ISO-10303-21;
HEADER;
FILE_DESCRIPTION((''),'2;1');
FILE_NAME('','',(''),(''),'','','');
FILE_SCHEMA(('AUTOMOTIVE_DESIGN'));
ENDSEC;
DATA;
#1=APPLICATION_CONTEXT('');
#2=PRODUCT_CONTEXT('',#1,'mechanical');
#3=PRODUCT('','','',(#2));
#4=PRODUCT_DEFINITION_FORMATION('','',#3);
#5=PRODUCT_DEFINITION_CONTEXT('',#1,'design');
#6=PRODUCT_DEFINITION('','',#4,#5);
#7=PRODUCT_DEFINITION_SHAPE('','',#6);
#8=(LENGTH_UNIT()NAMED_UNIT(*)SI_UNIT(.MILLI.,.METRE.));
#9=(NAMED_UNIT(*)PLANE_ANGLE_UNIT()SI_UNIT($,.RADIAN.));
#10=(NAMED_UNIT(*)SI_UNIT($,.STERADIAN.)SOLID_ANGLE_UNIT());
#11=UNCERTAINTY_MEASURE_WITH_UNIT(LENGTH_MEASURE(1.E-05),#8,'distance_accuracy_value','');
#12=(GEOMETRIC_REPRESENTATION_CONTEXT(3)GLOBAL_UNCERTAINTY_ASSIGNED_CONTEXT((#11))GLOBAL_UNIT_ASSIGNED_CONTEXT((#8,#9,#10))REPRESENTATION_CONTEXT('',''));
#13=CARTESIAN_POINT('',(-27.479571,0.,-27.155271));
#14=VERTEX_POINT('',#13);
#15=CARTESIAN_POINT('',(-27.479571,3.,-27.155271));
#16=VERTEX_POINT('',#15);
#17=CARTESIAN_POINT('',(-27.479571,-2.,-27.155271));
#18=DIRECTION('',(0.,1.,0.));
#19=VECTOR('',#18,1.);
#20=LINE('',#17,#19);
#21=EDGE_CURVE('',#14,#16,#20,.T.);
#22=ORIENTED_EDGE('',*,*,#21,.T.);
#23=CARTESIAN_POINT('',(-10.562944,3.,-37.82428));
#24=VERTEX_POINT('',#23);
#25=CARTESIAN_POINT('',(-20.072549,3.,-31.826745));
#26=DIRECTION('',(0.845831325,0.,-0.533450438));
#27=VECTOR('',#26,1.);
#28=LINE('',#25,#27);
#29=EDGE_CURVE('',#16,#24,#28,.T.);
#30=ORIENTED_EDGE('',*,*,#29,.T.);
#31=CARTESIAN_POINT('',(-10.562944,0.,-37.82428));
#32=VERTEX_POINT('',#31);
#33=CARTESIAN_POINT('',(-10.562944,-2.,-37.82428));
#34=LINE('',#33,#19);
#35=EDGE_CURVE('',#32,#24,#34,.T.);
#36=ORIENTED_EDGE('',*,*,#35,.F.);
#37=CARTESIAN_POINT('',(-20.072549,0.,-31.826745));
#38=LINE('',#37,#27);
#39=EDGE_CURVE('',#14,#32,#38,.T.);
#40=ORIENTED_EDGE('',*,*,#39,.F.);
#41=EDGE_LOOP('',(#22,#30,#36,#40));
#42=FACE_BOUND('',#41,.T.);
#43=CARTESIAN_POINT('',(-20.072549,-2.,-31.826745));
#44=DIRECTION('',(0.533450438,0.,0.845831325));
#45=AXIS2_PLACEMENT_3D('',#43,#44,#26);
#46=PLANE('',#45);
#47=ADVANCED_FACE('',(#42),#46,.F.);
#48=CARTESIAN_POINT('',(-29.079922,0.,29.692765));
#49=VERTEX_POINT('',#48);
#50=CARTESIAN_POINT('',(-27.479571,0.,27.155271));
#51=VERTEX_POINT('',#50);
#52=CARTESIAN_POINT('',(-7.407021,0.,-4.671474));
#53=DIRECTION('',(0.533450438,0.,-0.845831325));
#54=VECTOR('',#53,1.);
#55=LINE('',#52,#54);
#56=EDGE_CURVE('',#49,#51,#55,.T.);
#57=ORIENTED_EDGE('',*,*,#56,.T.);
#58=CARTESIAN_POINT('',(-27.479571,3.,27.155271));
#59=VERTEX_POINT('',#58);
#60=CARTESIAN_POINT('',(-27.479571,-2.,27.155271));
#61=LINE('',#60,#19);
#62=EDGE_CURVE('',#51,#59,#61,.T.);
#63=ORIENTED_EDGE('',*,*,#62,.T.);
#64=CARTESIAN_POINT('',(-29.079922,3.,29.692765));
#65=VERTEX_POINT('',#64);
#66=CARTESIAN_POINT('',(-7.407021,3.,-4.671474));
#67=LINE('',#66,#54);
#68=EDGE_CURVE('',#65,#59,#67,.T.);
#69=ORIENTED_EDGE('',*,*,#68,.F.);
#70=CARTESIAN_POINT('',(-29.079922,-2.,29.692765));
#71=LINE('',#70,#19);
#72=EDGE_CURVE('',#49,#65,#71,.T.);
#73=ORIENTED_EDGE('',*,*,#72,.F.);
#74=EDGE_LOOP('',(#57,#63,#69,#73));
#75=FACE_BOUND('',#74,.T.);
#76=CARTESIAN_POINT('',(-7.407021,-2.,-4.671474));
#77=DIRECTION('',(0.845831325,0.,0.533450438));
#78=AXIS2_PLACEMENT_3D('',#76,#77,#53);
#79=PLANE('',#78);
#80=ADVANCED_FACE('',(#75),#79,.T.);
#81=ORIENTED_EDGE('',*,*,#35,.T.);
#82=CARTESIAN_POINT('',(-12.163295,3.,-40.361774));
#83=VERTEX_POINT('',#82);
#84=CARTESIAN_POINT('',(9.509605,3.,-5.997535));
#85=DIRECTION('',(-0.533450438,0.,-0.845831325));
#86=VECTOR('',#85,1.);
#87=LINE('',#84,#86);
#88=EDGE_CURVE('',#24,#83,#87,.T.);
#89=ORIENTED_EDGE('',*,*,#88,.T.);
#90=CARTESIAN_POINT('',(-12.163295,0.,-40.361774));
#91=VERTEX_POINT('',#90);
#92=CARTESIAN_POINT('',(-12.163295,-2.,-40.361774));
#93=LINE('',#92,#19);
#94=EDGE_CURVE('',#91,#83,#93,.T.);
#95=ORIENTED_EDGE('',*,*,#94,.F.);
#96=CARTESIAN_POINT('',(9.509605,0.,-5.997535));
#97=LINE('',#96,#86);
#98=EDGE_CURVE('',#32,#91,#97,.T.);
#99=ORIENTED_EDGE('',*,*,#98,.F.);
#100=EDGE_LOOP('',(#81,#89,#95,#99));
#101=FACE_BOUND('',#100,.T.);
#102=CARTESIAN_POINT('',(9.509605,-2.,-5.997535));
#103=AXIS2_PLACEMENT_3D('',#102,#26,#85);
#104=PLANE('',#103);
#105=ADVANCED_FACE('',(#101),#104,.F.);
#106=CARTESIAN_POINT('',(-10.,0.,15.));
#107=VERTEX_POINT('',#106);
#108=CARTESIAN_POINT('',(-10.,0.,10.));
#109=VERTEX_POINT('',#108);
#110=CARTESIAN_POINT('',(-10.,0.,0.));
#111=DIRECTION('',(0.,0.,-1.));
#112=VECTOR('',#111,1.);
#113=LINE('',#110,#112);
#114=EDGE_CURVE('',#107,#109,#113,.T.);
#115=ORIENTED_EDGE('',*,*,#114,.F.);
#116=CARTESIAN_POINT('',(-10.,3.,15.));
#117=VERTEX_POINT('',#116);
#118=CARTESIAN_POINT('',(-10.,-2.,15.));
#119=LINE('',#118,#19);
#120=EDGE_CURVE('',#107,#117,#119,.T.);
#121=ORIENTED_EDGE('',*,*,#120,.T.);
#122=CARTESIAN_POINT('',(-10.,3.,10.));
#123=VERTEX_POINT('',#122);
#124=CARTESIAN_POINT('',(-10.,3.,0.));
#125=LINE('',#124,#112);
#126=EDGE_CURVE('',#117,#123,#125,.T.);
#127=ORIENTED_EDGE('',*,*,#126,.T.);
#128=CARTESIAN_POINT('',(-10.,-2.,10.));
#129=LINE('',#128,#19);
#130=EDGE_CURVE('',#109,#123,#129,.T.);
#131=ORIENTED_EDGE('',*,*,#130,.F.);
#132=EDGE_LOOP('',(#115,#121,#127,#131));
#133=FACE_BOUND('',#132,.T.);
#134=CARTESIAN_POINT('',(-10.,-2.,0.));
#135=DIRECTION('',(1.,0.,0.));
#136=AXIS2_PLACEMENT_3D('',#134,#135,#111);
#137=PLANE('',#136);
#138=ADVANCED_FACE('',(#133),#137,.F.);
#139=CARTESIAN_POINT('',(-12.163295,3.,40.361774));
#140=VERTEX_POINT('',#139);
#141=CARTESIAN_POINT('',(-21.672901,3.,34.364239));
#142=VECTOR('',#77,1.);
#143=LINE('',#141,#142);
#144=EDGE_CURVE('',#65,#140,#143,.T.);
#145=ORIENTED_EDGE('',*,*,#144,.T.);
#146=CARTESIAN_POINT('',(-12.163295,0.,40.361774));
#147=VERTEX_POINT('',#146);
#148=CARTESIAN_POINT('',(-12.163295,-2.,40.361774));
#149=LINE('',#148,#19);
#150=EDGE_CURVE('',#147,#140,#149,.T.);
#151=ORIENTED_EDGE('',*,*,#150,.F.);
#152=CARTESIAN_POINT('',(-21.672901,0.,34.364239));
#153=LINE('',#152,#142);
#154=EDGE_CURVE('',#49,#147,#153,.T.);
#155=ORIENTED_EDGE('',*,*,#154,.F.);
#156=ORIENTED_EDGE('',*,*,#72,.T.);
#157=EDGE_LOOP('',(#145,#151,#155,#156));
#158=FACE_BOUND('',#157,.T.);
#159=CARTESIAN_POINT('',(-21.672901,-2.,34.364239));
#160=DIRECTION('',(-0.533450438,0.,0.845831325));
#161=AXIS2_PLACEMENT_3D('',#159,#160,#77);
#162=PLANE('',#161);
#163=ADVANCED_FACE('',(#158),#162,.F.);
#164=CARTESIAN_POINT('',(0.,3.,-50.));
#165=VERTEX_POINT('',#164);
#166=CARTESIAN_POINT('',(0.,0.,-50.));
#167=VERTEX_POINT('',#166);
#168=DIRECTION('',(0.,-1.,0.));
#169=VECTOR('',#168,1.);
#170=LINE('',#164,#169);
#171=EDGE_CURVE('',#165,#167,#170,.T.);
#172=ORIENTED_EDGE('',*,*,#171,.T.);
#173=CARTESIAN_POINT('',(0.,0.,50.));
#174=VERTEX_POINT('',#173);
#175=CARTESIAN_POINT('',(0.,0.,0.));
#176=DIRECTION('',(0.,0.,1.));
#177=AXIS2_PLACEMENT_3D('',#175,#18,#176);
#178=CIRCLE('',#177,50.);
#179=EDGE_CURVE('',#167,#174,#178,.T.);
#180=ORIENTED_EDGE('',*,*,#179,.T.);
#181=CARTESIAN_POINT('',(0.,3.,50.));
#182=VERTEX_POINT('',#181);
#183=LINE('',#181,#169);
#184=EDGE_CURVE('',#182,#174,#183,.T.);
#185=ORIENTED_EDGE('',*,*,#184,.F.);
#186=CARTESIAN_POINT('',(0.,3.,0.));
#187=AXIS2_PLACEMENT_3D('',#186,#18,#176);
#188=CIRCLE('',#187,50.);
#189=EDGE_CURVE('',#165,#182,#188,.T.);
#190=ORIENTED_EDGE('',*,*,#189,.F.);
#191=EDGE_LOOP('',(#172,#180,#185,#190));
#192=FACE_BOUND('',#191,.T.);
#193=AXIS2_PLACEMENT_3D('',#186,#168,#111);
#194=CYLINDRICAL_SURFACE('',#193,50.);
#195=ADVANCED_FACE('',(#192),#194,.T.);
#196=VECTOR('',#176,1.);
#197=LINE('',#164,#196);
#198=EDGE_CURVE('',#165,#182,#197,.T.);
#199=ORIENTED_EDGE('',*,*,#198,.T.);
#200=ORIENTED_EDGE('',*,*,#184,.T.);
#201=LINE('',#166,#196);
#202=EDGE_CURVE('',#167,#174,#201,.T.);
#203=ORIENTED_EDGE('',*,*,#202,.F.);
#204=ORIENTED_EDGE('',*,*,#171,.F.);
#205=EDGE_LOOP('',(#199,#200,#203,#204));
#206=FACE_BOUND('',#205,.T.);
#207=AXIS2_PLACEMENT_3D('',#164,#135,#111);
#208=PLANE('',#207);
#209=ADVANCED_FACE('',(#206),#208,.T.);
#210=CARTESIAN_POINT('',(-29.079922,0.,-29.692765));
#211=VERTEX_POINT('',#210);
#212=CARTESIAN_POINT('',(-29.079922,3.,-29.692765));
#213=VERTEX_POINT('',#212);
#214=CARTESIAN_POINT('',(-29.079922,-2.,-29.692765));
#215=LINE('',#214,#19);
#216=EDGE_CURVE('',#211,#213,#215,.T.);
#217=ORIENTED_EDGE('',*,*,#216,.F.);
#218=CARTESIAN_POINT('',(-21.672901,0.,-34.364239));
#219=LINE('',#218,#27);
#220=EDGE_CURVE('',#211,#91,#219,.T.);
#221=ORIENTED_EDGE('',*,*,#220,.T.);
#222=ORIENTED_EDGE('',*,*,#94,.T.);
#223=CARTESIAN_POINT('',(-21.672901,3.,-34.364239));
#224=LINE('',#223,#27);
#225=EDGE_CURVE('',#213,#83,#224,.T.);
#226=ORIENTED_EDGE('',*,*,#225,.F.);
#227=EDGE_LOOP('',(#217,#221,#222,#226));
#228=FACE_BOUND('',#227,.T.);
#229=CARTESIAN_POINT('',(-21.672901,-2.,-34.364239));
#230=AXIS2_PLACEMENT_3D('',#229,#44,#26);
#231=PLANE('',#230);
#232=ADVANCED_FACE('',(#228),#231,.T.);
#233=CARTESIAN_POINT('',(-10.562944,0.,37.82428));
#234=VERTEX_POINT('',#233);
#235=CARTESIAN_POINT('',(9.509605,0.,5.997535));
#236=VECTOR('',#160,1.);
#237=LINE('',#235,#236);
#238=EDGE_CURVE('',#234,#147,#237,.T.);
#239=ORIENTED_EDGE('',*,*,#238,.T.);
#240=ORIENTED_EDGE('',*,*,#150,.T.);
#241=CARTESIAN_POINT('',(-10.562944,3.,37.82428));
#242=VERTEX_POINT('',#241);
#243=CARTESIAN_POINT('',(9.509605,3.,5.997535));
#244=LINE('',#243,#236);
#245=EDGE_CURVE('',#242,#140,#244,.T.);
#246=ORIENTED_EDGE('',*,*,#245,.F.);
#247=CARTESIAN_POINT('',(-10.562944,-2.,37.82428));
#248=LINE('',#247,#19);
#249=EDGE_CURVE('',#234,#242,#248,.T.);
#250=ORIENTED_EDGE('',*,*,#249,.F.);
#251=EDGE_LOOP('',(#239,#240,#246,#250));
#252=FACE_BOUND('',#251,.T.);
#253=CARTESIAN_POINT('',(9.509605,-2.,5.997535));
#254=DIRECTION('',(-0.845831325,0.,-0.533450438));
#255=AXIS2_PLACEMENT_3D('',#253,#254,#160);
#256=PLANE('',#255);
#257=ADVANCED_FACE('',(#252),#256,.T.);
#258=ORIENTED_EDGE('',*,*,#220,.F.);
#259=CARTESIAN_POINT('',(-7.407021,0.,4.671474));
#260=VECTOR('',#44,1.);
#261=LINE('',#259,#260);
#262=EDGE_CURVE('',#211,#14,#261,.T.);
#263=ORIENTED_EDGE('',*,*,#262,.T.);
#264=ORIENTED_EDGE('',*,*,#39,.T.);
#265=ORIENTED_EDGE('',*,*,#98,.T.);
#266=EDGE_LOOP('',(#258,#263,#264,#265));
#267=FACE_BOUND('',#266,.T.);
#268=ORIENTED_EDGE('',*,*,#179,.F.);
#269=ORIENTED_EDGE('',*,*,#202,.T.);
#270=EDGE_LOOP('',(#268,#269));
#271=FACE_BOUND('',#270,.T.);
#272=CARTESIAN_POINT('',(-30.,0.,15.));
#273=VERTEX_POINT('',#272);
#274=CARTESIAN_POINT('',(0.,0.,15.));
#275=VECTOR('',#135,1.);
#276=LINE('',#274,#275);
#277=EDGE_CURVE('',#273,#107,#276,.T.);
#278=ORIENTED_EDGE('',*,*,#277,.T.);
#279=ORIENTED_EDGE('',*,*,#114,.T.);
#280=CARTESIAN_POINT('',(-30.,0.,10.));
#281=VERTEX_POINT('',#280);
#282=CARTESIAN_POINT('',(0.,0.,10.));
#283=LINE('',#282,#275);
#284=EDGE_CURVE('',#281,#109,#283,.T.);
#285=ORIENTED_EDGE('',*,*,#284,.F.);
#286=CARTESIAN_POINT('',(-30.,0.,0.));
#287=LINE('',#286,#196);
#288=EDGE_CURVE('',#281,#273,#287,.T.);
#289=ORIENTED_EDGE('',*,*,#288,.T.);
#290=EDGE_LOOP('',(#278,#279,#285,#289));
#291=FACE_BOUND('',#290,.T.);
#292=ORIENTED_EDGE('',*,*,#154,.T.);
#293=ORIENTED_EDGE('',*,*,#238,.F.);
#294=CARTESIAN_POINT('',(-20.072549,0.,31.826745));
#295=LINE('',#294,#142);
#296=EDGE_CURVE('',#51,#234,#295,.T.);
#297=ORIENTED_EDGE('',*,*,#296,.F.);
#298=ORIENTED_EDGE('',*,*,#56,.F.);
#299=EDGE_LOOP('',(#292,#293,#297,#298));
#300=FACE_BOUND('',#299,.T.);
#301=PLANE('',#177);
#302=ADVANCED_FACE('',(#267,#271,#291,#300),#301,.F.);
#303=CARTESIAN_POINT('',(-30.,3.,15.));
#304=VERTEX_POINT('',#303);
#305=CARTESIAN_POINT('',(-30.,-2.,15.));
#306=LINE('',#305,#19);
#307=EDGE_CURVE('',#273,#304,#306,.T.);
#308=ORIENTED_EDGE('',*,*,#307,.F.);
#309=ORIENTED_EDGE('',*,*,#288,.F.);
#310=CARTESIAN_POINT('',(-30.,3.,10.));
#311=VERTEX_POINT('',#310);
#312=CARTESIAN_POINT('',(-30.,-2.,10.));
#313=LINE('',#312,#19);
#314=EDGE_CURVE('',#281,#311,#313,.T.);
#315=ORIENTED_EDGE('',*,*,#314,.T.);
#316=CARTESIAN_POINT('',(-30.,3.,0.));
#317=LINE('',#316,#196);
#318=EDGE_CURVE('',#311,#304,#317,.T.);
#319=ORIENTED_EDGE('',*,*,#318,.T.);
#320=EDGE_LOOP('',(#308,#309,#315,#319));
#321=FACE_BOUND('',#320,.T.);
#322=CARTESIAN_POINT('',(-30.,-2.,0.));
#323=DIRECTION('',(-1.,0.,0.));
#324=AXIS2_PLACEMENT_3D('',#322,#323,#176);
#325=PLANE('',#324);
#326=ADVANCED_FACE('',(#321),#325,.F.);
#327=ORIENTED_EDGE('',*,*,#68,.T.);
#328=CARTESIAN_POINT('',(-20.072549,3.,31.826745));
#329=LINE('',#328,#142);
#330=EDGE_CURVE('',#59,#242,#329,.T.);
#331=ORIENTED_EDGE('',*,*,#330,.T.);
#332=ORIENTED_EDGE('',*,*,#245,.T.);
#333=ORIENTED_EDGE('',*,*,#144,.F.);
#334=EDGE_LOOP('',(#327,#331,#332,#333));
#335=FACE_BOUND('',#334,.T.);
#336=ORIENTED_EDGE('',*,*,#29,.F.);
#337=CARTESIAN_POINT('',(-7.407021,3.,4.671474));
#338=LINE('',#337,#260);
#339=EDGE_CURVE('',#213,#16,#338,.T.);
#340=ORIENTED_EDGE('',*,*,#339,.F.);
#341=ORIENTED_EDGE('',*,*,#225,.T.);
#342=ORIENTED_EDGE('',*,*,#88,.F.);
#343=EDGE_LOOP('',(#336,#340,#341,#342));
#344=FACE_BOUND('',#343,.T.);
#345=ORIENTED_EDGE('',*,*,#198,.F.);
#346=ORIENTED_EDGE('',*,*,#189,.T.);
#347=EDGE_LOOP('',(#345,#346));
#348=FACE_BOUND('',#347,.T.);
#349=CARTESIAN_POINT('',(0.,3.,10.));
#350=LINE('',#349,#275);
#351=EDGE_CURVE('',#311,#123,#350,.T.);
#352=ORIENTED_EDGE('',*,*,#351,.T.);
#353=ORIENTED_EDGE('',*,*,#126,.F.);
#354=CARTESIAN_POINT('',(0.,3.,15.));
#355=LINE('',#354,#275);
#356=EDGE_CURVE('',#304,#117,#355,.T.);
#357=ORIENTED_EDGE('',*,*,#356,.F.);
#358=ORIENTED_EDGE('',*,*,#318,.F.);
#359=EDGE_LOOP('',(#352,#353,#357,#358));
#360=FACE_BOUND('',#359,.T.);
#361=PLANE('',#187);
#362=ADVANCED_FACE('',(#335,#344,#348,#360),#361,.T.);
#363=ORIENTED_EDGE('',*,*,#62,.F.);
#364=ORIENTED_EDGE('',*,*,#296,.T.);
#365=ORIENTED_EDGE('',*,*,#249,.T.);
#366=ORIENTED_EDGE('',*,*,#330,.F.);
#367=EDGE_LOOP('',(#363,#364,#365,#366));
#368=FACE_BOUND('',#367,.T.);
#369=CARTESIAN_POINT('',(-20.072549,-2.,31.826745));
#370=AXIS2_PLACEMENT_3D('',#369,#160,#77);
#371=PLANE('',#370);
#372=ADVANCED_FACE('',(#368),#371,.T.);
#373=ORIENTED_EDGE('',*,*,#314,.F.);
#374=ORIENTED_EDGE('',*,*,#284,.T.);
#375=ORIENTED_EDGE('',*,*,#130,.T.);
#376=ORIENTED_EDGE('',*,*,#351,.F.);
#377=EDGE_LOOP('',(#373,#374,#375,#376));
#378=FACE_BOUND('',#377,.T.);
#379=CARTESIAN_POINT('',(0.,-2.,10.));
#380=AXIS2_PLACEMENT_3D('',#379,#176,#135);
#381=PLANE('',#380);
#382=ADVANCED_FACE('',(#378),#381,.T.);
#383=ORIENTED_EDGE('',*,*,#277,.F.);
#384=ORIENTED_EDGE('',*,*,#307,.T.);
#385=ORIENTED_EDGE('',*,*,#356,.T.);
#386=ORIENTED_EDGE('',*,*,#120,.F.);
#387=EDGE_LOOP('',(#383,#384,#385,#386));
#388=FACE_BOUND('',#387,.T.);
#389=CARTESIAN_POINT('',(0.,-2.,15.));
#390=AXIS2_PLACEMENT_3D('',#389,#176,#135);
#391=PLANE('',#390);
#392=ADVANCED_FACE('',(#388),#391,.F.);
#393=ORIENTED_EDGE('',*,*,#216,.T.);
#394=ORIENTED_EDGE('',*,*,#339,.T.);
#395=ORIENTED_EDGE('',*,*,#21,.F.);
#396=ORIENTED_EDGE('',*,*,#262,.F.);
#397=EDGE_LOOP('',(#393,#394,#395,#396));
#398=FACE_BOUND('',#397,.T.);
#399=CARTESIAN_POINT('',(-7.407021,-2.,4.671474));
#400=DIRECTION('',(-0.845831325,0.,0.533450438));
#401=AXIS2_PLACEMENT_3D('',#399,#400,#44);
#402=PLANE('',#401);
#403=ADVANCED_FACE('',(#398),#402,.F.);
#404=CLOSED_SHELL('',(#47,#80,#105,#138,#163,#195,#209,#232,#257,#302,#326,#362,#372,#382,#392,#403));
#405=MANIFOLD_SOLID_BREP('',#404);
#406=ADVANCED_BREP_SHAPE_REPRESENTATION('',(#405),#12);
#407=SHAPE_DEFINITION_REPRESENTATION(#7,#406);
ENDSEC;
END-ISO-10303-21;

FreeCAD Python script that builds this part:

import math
import FreeCAD as App
import Part
import Sketcher
from FreeCAD import Vector
Q = App.Units.Quantity

doc = App.newDocument("Part")
body = doc.addObject("PartDesign::Body", "Body")

sketch1 = body.newObject("Sketcher::SketchObject", "Sketch")
sketch1.AttachmentSupport = (doc.getObject("XZ_Plane"), [""])
sketch1.MapMode = "FlatFace"
sketch1.addGeometry(Part.LineSegment(Vector(0, 50, 0), Vector(0, -50, 0)), False)
sketch1.addGeometry(Part.ArcOfCircle(Part.Circle(Vector(0, 0, 0), Vector(0, 0, 1), 50), math.radians(90), math.radians(270)), False)
sketch1.addConstraint(Sketcher.Constraint("Coincident", 0, 1, 1, 1))
sketch1.addConstraint(Sketcher.Constraint("Coincident", 1, 2, 0, 2))
sketch1.addConstraint(Sketcher.Constraint("Vertical", 0))
sketch1.addConstraint(Sketcher.Constraint("Coincident", 1, 3, -1, 1))
sketch1.addConstraint(Sketcher.Constraint("PointOnObject", 0, 1, -2))
sketch1.addConstraint(Sketcher.Constraint("Radius", 1, Q("50 mm")))
pad1 = body.newObject("PartDesign::Pad", "Pad")
pad1.Profile = sketch1
pad1.Length = 3
pad1.Reversed = True

sketch2 = body.newObject("Sketcher::SketchObject", "Sketch001")
sketch2.AttachmentSupport = (doc.getObject("XZ_Plane"), [""])
sketch2.MapMode = "FlatFace"
sketch2.AttachmentOffset = App.Placement(Vector(0, 0, -3), App.Rotation())
sketch2.addGeometry(Part.LineSegment(Vector(-27.479571, -27.155271, 0), Vector(-10.562944, -37.82428, 0)), False)
sketch2.addGeometry(Part.LineSegment(Vector(-10.562944, -37.82428, 0), Vector(-12.163295, -40.361774, 0)), False)
sketch2.addGeometry(Part.LineSegment(Vector(-12.163295, -40.361774, 0), Vector(-29.079922, -29.692765, 0)), False)
sketch2.addGeometry(Part.LineSegment(Vector(-29.079922, -29.692765, 0), Vector(-27.479571, -27.155271, 0)), False)
sketch2.addGeometry(Part.LineSegment(Vector(-27.479571, 27.155271, 0), Vector(-29.079922, 29.692765, 0)), False)
sketch2.addGeometry(Part.LineSegment(Vector(-29.079922, 29.692765, 0), Vector(-12.163295, 40.361774, 0)), False)
sketch2.addGeometry(Part.LineSegment(Vector(-12.163295, 40.361774, 0), Vector(-10.562944, 37.82428, 0)), False)
sketch2.addGeometry(Part.LineSegment(Vector(-10.562944, 37.82428, 0), Vector(-27.479571, 27.155271, 0)), False)
sketch2.addConstraint(Sketcher.Constraint("Coincident", 0, 2, 1, 1))
sketch2.addConstraint(Sketcher.Constraint("Coincident", 1, 2, 2, 1))
sketch2.addConstraint(Sketcher.Constraint("Coincident", 2, 2, 3, 1))
sketch2.addConstraint(Sketcher.Constraint("Coincident", 3, 2, 0, 1))
sketch2.addConstraint(Sketcher.Constraint("Coincident", 4, 2, 5, 1))
sketch2.addConstraint(Sketcher.Constraint("Coincident", 5, 2, 6, 1))
sketch2.addConstraint(Sketcher.Constraint("Coincident", 6, 2, 7, 1))
sketch2.addConstraint(Sketcher.Constraint("Coincident", 7, 2, 4, 1))
sketch2.addConstraint(Sketcher.Constraint("Symmetric", 2, 2, 4, 2, -1))
sketch2.addConstraint(Sketcher.Constraint("Symmetric", 1, 2, 5, 2, -1))
sketch2.addConstraint(Sketcher.Constraint("Symmetric", 0, 2, 6, 2, -1))
sketch2.addConstraint(Sketcher.Constraint("Symmetric", 3, 2, 7, 2, -1))
sketch2.addConstraint(Sketcher.Constraint("Perpendicular", 0, 1))
sketch2.addConstraint(Sketcher.Constraint("Perpendicular", 1, 2))
sketch2.addConstraint(Sketcher.Constraint("Perpendicular", 2, 3))
sketch2.addConstraint(Sketcher.Constraint("Distance", 0, Q("20 mm")))
sketch2.addConstraint(Sketcher.Constraint("Distance", 1, Q("3 mm")))
sketch2.addConstraint(Sketcher.Constraint("DistanceY", 0, 2, -1, 1, Q("37.82428 mm")))
sketch2.addConstraint(Sketcher.Constraint("DistanceX", 2, 2, -1, 1, Q("29.079922 mm")))
sketch2.addConstraint(Sketcher.Constraint("DistanceX", 3, 2, -1, 1, Q("27.479571 mm")))
pocket1 = body.newObject("PartDesign::Pocket", "Pocket")
pocket1.Profile = sketch2
pocket1.Length = 5
pocket1.Reversed = True

sketch3 = body.newObject("Sketcher::SketchObject", "Sketch002")
sketch3.AttachmentSupport = (doc.getObject("XZ_Plane"), [""])
sketch3.MapMode = "FlatFace"
sketch3.AttachmentOffset = App.Placement(Vector(0, 0, -3), App.Rotation())
sketch3.addGeometry(Part.LineSegment(Vector(-30, 10, 0), Vector(-30, 15, 0)), False)
sketch3.addGeometry(Part.LineSegment(Vector(-30, 15, 0), Vector(-10, 15, 0)), False)
sketch3.addGeometry(Part.LineSegment(Vector(-10, 15, 0), Vector(-10, 10, 0)), False)
sketch3.addGeometry(Part.LineSegment(Vector(-10, 10, 0), Vector(-30, 10, 0)), False)
sketch3.addConstraint(Sketcher.Constraint("Coincident", 0, 2, 1, 1))
sketch3.addConstraint(Sketcher.Constraint("Coincident", 1, 2, 2, 1))
sketch3.addConstraint(Sketcher.Constraint("Coincident", 2, 2, 3, 1))
sketch3.addConstraint(Sketcher.Constraint("Coincident", 3, 2, 0, 1))
sketch3.addConstraint(Sketcher.Constraint("Vertical", 0))
sketch3.addConstraint(Sketcher.Constraint("Horizontal", 1))
sketch3.addConstraint(Sketcher.Constraint("Vertical", 2))
sketch3.addConstraint(Sketcher.Constraint("Horizontal", 3))
sketch3.addConstraint(Sketcher.Constraint("DistanceX", 1, 1, 1, 2, Q("20 mm")))
sketch3.addConstraint(Sketcher.Constraint("DistanceY", 0, 1, 0, 2, Q("5 mm")))
sketch3.addConstraint(Sketcher.Constraint("DistanceX", 0, 2, -1, 1, Q("30 mm")))
sketch3.addConstraint(Sketcher.Constraint("DistanceY", -1, 1, 0, 2, Q("15 mm")))
pocket2 = body.newObject("PartDesign::Pocket", "Pocket001")
pocket2.Profile = sketch3
pocket2.Length = 5
pocket2.Reversed = True

doc.recompute()
